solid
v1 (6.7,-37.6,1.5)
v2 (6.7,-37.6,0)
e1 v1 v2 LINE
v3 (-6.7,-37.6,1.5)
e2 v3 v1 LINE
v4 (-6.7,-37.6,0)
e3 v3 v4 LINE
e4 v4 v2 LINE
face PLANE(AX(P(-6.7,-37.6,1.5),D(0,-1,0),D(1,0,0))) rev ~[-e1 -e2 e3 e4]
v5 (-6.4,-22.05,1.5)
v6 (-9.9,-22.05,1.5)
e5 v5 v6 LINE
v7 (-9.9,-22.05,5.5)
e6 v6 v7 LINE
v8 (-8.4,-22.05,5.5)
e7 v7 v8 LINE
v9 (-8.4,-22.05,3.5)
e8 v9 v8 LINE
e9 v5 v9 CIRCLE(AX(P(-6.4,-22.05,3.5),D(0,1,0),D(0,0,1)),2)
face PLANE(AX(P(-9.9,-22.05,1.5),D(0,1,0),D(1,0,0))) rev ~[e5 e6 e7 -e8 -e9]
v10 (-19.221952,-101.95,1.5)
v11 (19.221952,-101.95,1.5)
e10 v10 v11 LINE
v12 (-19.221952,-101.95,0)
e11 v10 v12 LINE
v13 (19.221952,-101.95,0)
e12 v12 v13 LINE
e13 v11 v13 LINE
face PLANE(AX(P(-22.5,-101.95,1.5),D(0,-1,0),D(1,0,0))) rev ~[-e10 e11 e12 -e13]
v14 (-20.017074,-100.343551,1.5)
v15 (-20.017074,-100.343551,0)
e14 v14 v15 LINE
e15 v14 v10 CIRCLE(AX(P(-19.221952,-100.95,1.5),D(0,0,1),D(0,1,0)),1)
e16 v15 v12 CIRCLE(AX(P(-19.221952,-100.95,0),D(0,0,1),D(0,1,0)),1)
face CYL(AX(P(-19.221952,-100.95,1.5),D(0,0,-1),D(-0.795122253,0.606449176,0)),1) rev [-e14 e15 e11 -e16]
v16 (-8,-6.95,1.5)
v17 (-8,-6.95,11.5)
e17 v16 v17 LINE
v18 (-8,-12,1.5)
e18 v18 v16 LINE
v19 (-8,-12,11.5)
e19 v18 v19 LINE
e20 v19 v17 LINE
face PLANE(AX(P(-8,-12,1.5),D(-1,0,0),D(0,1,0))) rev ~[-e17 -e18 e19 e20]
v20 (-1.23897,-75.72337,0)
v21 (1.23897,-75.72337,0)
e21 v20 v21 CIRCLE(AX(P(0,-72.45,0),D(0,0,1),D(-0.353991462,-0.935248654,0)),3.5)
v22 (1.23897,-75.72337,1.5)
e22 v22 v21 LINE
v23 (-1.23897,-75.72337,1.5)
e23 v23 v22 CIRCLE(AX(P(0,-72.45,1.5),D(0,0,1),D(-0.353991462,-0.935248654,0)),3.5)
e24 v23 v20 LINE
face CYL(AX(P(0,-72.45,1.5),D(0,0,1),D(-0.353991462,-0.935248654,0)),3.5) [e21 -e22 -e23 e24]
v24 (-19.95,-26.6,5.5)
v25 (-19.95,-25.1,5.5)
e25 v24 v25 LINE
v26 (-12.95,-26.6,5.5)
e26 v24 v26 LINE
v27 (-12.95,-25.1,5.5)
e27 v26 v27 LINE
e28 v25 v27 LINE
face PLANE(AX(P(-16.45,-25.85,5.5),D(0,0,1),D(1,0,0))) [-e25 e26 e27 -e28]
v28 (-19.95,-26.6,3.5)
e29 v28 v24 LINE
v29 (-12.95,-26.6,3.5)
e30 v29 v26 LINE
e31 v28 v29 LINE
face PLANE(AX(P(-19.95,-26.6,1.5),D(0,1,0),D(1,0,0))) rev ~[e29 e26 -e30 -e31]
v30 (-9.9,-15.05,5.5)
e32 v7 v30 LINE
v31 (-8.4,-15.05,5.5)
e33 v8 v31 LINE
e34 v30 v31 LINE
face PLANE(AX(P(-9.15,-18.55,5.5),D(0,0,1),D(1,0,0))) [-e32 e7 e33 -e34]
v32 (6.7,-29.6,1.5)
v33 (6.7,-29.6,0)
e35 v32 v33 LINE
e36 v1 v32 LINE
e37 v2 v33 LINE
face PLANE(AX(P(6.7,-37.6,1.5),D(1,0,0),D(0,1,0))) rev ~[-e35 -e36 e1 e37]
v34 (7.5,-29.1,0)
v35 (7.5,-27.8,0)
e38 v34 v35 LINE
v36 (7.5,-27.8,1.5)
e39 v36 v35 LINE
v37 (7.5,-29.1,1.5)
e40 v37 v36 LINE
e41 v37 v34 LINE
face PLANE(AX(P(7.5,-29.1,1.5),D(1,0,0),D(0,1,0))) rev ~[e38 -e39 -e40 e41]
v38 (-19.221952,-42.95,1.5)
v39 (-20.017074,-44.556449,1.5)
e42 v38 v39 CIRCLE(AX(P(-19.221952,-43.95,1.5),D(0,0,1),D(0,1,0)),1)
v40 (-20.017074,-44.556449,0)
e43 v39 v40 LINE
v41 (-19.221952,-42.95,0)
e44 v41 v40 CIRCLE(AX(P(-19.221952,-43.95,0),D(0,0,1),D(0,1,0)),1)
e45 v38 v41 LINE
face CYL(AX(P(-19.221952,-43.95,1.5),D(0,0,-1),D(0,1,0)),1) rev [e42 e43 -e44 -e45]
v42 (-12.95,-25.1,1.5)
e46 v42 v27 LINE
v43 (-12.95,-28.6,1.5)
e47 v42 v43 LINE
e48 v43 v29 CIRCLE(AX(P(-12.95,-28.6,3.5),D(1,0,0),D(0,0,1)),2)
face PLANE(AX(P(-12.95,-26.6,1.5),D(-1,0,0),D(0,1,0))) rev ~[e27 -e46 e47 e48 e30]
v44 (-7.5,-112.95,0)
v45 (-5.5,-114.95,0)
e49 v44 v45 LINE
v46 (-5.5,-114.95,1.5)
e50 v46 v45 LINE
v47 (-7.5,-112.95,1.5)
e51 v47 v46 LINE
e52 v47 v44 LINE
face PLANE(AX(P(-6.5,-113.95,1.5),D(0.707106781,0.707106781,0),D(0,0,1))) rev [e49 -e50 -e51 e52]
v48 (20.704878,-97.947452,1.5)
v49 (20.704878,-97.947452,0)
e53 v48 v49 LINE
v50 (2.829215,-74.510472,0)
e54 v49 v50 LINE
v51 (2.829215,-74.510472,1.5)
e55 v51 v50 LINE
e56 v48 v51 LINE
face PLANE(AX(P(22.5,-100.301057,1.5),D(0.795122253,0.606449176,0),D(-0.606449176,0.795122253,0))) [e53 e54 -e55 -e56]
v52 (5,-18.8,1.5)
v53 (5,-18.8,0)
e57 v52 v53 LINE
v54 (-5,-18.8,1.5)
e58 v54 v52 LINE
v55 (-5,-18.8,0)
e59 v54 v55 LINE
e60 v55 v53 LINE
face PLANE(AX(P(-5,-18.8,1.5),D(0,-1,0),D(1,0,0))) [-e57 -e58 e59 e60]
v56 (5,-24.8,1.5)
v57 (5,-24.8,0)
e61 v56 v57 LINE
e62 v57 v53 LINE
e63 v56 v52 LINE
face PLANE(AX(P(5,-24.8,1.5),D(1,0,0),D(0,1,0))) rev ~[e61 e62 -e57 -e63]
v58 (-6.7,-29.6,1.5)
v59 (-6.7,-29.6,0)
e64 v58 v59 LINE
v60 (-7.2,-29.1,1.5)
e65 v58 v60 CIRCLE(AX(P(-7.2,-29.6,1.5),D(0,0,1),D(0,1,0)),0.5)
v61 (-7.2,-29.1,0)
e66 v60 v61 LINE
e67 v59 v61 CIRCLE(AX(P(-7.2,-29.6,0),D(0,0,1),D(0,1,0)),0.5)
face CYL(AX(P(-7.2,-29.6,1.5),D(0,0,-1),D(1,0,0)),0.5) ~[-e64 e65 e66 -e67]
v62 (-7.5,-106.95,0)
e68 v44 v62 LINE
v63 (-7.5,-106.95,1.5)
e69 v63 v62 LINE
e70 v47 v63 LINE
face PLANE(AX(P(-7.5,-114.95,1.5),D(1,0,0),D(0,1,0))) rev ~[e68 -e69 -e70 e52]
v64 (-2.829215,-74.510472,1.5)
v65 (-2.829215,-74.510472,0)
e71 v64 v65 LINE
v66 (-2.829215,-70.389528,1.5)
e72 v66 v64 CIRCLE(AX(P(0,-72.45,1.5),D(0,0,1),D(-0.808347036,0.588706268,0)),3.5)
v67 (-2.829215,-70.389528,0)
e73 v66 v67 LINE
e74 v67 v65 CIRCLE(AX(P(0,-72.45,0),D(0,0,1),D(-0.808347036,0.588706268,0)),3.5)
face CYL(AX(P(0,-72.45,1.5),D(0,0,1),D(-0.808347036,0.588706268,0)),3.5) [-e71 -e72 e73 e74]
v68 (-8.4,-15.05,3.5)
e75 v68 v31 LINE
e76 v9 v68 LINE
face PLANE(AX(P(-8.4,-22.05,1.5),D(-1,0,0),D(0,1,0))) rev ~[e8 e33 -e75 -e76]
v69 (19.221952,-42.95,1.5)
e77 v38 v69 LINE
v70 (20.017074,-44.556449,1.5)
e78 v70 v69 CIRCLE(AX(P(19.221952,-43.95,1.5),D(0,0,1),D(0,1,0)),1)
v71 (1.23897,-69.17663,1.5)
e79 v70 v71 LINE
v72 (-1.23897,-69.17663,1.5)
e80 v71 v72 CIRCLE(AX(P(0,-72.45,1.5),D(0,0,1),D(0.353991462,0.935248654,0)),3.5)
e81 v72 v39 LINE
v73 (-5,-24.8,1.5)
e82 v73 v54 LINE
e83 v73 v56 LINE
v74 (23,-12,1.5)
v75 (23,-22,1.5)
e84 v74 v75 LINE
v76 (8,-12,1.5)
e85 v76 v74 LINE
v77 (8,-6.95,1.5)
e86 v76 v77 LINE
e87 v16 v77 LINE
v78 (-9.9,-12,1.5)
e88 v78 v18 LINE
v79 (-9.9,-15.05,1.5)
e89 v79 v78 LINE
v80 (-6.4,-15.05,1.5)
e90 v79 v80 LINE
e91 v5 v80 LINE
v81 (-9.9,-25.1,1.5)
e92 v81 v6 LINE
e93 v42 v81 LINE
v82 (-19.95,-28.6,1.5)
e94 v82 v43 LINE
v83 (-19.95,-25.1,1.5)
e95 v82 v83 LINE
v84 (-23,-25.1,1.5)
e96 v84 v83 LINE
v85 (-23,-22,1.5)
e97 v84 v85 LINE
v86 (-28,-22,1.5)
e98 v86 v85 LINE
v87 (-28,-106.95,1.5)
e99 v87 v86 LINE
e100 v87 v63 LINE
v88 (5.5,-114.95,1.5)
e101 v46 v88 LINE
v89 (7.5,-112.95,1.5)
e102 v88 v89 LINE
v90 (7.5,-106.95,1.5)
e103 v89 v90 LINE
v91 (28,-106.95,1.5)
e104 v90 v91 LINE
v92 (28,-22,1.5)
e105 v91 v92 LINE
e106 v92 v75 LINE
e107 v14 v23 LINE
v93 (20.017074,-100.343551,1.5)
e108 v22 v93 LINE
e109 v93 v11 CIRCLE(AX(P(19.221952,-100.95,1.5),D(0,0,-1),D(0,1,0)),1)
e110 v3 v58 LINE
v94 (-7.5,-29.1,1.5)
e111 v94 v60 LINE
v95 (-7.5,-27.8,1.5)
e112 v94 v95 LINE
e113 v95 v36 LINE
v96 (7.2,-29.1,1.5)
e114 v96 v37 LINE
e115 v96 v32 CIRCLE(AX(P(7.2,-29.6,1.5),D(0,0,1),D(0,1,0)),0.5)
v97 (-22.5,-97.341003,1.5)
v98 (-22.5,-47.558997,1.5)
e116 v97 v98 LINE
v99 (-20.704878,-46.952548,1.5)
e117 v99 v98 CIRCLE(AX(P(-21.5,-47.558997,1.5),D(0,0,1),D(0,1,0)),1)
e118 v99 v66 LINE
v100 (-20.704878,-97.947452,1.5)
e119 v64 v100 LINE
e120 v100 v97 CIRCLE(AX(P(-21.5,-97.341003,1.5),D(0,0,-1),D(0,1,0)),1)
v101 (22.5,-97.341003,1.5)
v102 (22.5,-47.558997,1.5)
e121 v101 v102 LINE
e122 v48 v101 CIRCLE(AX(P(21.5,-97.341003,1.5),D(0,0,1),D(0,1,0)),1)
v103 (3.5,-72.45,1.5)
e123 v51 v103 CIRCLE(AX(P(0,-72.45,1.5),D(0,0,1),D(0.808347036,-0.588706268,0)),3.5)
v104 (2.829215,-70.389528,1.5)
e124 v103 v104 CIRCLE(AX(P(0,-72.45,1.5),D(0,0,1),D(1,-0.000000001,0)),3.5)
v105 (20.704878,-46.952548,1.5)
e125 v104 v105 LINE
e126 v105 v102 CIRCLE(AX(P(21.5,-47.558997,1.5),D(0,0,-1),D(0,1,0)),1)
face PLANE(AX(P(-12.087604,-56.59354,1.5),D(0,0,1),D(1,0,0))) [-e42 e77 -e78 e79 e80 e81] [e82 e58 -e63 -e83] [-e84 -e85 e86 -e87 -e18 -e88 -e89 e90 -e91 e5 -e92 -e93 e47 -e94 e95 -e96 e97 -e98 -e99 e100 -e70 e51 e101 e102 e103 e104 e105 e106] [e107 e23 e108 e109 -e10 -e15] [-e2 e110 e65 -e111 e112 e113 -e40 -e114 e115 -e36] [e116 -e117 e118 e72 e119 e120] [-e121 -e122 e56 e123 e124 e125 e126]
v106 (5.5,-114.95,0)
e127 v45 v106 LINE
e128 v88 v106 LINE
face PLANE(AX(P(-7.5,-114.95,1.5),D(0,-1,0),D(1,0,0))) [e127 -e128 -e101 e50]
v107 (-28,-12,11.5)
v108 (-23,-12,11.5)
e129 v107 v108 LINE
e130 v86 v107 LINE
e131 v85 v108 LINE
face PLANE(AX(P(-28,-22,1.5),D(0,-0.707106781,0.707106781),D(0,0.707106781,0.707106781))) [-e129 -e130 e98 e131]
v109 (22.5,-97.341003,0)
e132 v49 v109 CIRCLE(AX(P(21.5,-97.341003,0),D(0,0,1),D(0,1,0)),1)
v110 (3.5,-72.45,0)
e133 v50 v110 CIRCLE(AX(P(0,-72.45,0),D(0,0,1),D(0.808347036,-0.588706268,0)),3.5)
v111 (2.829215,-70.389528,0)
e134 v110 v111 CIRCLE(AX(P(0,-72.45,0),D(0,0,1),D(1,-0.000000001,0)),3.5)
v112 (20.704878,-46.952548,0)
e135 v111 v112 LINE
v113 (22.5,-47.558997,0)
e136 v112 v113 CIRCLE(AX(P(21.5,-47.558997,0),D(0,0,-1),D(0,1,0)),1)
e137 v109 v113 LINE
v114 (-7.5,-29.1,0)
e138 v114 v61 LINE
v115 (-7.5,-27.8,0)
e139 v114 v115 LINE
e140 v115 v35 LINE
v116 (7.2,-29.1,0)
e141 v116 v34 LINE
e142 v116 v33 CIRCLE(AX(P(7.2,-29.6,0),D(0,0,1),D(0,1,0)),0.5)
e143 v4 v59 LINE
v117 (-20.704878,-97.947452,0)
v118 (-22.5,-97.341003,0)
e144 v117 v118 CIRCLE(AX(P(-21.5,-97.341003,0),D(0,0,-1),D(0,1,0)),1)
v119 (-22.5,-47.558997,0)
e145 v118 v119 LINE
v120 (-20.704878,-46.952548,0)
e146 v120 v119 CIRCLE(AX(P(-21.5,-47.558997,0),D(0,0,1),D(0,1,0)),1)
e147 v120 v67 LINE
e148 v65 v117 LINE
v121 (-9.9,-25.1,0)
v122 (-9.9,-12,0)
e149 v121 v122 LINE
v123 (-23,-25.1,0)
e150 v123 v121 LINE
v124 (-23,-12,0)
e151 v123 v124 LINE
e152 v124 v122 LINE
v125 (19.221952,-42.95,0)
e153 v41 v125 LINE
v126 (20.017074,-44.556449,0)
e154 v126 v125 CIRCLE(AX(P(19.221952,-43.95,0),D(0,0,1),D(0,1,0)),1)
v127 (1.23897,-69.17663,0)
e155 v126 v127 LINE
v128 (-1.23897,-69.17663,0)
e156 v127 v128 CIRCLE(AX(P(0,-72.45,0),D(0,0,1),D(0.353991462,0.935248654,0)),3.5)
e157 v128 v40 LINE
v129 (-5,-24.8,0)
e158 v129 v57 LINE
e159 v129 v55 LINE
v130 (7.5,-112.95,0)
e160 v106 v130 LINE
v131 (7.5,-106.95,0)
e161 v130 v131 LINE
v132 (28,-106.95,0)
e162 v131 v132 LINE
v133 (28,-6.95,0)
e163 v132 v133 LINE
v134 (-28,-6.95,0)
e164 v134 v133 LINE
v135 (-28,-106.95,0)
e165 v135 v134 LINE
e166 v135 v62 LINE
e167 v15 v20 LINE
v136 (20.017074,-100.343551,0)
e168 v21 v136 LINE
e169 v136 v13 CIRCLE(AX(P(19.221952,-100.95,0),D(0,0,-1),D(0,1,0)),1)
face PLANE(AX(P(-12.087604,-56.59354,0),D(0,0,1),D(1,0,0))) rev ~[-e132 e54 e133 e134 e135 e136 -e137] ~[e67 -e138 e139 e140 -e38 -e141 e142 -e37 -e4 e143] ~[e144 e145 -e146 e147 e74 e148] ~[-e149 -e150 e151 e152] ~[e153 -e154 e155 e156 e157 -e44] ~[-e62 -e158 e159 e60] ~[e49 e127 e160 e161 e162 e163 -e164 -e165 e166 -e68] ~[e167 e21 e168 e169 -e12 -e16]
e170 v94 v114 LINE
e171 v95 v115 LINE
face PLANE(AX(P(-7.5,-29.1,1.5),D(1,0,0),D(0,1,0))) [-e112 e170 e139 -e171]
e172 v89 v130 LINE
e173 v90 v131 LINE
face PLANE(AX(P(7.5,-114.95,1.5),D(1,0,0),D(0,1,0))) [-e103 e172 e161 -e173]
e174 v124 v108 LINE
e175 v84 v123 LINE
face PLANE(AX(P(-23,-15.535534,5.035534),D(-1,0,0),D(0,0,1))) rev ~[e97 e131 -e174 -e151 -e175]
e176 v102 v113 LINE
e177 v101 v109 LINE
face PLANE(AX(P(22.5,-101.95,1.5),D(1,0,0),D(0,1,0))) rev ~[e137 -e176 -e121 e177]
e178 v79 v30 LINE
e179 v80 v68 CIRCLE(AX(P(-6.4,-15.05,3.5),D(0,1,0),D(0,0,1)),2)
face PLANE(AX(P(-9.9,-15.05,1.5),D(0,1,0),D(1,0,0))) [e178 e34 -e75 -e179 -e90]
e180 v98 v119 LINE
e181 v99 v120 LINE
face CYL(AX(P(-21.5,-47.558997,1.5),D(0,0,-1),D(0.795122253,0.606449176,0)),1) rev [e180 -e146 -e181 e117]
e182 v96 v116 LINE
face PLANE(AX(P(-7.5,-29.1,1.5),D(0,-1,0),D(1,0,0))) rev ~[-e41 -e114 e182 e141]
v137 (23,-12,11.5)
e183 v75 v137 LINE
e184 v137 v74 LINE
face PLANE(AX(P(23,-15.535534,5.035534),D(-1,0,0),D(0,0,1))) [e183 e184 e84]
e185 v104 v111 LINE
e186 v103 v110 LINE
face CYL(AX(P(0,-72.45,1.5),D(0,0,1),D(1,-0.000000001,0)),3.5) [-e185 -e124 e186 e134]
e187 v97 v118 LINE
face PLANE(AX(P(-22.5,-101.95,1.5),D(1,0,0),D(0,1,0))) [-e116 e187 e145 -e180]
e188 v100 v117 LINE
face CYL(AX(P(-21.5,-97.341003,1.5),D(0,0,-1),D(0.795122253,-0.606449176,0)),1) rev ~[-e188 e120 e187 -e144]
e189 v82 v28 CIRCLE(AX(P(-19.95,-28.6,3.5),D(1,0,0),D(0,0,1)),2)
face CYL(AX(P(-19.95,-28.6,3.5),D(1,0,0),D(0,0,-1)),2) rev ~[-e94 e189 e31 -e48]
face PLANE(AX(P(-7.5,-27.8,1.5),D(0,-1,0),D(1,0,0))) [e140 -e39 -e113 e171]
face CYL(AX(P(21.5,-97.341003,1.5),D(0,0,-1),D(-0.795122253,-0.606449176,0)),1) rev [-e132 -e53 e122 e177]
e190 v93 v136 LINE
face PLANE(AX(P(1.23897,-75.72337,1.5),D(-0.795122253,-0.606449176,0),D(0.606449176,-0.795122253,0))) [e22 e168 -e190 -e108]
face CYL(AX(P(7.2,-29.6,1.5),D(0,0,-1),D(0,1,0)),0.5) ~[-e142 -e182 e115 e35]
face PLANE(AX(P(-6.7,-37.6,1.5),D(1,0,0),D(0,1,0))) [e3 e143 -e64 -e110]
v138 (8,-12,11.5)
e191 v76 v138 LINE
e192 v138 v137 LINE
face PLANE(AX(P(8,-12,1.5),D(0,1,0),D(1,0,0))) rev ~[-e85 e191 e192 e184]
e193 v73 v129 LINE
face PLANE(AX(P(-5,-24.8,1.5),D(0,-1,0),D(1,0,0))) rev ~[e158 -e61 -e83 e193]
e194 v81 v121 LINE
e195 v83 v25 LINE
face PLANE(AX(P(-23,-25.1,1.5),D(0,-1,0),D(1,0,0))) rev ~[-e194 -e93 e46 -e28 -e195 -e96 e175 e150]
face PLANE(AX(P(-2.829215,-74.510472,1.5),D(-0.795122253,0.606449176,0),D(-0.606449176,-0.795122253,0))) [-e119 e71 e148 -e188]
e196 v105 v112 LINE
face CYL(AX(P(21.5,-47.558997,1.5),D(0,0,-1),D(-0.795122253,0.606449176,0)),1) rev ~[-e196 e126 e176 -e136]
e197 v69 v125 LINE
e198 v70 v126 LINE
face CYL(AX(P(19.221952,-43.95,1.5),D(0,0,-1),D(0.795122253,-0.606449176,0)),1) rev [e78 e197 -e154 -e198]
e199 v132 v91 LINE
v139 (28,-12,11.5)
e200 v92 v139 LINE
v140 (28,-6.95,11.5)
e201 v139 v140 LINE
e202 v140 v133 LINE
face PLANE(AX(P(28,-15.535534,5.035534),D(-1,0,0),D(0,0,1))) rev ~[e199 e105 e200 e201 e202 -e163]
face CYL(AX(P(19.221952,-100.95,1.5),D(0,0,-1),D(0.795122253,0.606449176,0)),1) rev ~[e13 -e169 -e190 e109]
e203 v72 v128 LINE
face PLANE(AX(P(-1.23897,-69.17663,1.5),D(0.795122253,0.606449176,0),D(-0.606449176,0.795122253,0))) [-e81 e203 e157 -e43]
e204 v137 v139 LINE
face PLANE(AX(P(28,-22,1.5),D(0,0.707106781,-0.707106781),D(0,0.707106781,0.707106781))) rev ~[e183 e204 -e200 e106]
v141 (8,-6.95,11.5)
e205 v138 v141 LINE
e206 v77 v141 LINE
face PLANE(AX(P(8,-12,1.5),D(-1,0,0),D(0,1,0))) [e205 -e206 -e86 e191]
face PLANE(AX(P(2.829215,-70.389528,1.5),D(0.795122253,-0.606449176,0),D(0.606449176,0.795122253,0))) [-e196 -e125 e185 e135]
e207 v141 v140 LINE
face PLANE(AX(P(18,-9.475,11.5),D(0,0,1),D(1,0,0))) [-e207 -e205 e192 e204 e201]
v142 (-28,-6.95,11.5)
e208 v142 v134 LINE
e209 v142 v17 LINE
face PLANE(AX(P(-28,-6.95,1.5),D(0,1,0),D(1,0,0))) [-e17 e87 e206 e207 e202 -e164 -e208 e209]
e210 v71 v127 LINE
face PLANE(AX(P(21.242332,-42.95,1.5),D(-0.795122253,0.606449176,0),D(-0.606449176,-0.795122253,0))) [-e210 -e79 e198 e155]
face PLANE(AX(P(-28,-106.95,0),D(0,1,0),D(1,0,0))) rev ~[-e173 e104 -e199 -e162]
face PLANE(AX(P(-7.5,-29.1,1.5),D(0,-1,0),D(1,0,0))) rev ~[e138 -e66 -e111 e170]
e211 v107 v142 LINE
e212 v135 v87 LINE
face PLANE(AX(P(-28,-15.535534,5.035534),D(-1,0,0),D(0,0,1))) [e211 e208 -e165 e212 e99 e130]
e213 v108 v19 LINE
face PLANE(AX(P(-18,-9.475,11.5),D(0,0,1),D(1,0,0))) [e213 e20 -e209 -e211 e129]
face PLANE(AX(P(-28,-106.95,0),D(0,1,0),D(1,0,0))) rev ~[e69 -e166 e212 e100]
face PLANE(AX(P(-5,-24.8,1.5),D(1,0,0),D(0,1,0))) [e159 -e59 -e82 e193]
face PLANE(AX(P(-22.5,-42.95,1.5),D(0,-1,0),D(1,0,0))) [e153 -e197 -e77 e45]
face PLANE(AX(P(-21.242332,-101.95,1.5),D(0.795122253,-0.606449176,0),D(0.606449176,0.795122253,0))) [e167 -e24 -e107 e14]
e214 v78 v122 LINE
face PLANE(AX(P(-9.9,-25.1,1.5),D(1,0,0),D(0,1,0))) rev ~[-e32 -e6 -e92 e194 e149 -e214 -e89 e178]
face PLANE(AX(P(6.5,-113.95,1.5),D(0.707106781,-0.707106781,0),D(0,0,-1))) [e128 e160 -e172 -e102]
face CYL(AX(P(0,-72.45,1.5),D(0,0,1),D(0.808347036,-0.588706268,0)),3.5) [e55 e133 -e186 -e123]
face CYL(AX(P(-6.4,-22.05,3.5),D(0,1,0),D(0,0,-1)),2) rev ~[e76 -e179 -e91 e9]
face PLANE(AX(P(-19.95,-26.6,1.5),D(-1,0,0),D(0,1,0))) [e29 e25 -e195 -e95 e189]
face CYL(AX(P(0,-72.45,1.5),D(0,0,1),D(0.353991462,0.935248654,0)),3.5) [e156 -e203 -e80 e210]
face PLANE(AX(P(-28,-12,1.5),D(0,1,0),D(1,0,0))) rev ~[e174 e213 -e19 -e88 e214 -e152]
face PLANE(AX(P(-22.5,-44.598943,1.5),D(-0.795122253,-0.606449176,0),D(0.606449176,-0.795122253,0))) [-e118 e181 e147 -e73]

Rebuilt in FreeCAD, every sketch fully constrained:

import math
import FreeCAD as App
import Part
import Sketcher


def edges_at(feature, points):
    """Names of the edges that pass closest to the given points."""
    edges = feature.Shape.Edges
    near = lambda p: min(range(len(edges)), key=lambda i: edges[i].distToShape(Part.Vertex(*p))[0])
    return sorted({f"Edge{near(p) + 1}" for p in points})


def add_polygon(sketch, points):
    """Adds a closed chain of lines whose ends are joined by coincident constraints."""
    first, n = sketch.GeometryCount, len(points)
    for a, b in zip(points, points[1:] + points[:1]):
        sketch.addGeometry(Part.LineSegment(App.Vector(*a, 0), App.Vector(*b, 0)), False)
    for i in range(n):
        sketch.addConstraint(Sketcher.Constraint("Coincident", first + i, 2, first + (i + 1) % n, 1))

doc = App.newDocument("Part")
body = doc.addObject("PartDesign::Body", "Body")

sketch1 = body.newObject("Sketcher::SketchObject", "Sketch")
sketch1.AttachmentSupport = (doc.getObject("XY_Plane"), [""])
sketch1.MapMode = "FlatFace"
add_polygon(sketch1, [(-28, -6.95), (-28, -106.95), (28, -106.95), (28, -6.95)])
sketch1.addConstraint(Sketcher.Constraint("Vertical", 0))
sketch1.addConstraint(Sketcher.Constraint("Horizontal", 1))
sketch1.addConstraint(Sketcher.Constraint("Vertical", 2))
sketch1.addConstraint(Sketcher.Constraint("Horizontal", 3))
sketch1.addConstraint(Sketcher.Constraint("DistanceX", 1, 1, 1, 2, 56.0))
sketch1.addConstraint(Sketcher.Constraint("DistanceY", 0, 2, 0, 1, 100.0))
sketch1.addConstraint(Sketcher.Constraint("DistanceX", 0, 2, -1, 1, 28.0))
sketch1.addConstraint(Sketcher.Constraint("DistanceY", 0, 2, -1, 1, 106.95))
pad1 = body.newObject("PartDesign::Pad", "Pad")
pad1.Profile = sketch1
pad1.Length = 1.5

sketch2 = body.newObject("Sketcher::SketchObject", "Sketch001")
sketch2.AttachmentSupport = (doc.getObject("XY_Plane"), [""])
sketch2.MapMode = "FlatFace"
sketch2.AttachmentOffset = App.Placement(App.Vector(0, 0, 1.5), App.Rotation())
add_polygon(sketch2, [(-28, -6.95), (-28, -12), (-8, -12), (-8, -6.95)])
add_polygon(sketch2, [(8, -6.95), (8, -12), (28, -12), (28, -6.95)])
sketch2.addConstraint(Sketcher.Constraint("Vertical", 0))
sketch2.addConstraint(Sketcher.Constraint("Horizontal", 1))
sketch2.addConstraint(Sketcher.Constraint("Vertical", 2))
sketch2.addConstraint(Sketcher.Constraint("Horizontal", 3))
sketch2.addConstraint(Sketcher.Constraint("Vertical", 4))
sketch2.addConstraint(Sketcher.Constraint("Horizontal", 5))
sketch2.addConstraint(Sketcher.Constraint("Vertical", 6))
sketch2.addConstraint(Sketcher.Constraint("Horizontal", 7))
sketch2.addConstraint(Sketcher.Constraint("Symmetric", 1, 2, 4, 2, -2))
sketch2.addConstraint(Sketcher.Constraint("Symmetric", 3, 2, 6, 2, -2))
sketch2.addConstraint(Sketcher.Constraint("DistanceX", 1, 1, 1, 2, 20.0))
sketch2.addConstraint(Sketcher.Constraint("DistanceX", 0, 2, -1, 1, 28.0))
sketch2.addConstraint(Sketcher.Constraint("DistanceY", 0, 2, -1, 1, 12.0))
sketch2.addConstraint(Sketcher.Constraint("DistanceY", 0, 2, 0, 1, 5.05))
pad2 = body.newObject("PartDesign::Pad", "Pad001")
pad2.Profile = sketch2
pad2.Length = 10

sketch3 = body.newObject("Sketcher::SketchObject", "Sketch002")
sketch3.AttachmentSupport = (doc.getObject("XY_Plane"), [""])
sketch3.MapMode = "FlatFace"
sketch3.AttachmentOffset = App.Placement(App.Vector(0, 0, 1.5), App.Rotation())
add_polygon(sketch3, [(-23, -12), (-23, -25.1), (-9.9, -25.1), (-9.9, -12)])
sketch3.addConstraint(Sketcher.Constraint("Vertical", 0))
sketch3.addConstraint(Sketcher.Constraint("Horizontal", 1))
sketch3.addConstraint(Sketcher.Constraint("Vertical", 2))
sketch3.addConstraint(Sketcher.Constraint("Horizontal", 3))
sketch3.addConstraint(Sketcher.Constraint("Equal", 3, 0))
sketch3.addConstraint(Sketcher.Constraint("DistanceX", 1, 1, 1, 2, 13.1))
sketch3.addConstraint(Sketcher.Constraint("DistanceX", 0, 2, -1, 1, 23.0))
sketch3.addConstraint(Sketcher.Constraint("DistanceY", 2, 2, -1, 1, 12.0))
pocket1 = body.newObject("PartDesign::Pocket", "Pocket")
pocket1.Profile = sketch3
pocket1.Type = "ThroughAll"

sketch4 = body.newObject("Sketcher::SketchObject", "Sketch003")
sketch4.AttachmentSupport = (doc.getObject("YZ_Plane"), [""])
sketch4.MapMode = "FlatFace"
sketch4.AttachmentOffset = App.Placement(App.Vector(0, 0, 28), App.Rotation())
add_polygon(sketch4, [(-12, 1.5), (-12, 11.5), (-22, 1.5)])
sketch4.addConstraint(Sketcher.Constraint("Vertical", 0))
sketch4.addConstraint(Sketcher.Constraint("Horizontal", 2))
sketch4.addConstraint(Sketcher.Constraint("Equal", 2, 0))
sketch4.addConstraint(Sketcher.Constraint("DistanceX", 2, 1, 2, 2, 10.0))
sketch4.addConstraint(Sketcher.Constraint("DistanceX", 0, 2, -1, 1, 12.0))
sketch4.addConstraint(Sketcher.Constraint("DistanceY", -1, 1, 0, 2, 11.5))
pad3 = body.newObject("PartDesign::Pad", "Pad002")
pad3.Profile = sketch4
pad3.Length = 5
pad3.Reversed = True

sketch5 = body.newObject("Sketcher::SketchObject", "Sketch004")
sketch5.AttachmentSupport = (doc.getObject("YZ_Plane"), [""])
sketch5.MapMode = "FlatFace"
sketch5.AttachmentOffset = App.Placement(App.Vector(0, 0, -28), App.Rotation())
add_polygon(sketch5, [(-22, 1.5), (-12, 11.5), (-12, 1.5)])
sketch5.addConstraint(Sketcher.Constraint("Vertical", 1))
sketch5.addConstraint(Sketcher.Constraint("Horizontal", 2))
sketch5.addConstraint(Sketcher.Constraint("Equal", 2, 1))
sketch5.addConstraint(Sketcher.Constraint("DistanceX", 2, 2, 2, 1, 10.0))
sketch5.addConstraint(Sketcher.Constraint("DistanceX", 0, 2, -1, 1, 12.0))
sketch5.addConstraint(Sketcher.Constraint("DistanceY", -1, 1, 0, 2, 11.5))
pad4 = body.newObject("PartDesign::Pad", "Pad003")
pad4.Profile = sketch5
pad4.Length = 5

sketch6 = body.newObject("Sketcher::SketchObject", "Sketch005")
sketch6.AttachmentSupport = (doc.getObject("XY_Plane"), [""])
sketch6.MapMode = "FlatFace"
sketch6.AttachmentOffset = App.Placement(App.Vector(0, 0, 1.5), App.Rotation())
add_polygon(sketch6, [(-19.95, -25.1), (-19.95, -26.6), (-12.95, -26.6), (-12.95, -25.1)])
add_polygon(sketch6, [(-9.9, -15.05), (-9.9, -22.05), (-8.4, -22.05), (-8.4, -15.05)])
sketch6.addConstraint(Sketcher.Constraint("Vertical", 0))
sketch6.addConstraint(Sketcher.Constraint("Horizontal", 1))
sketch6.addConstraint(Sketcher.Constraint("Vertical", 2))
sketch6.addConstraint(Sketcher.Constraint("Horizontal", 3))
sketch6.addConstraint(Sketcher.Constraint("Vertical", 4))
sketch6.addConstraint(Sketcher.Constraint("Horizontal", 5))
sketch6.addConstraint(Sketcher.Constraint("Vertical", 6))
sketch6.addConstraint(Sketcher.Constraint("Horizontal", 7))
sketch6.addConstraint(Sketcher.Constraint("Equal", 7, 0))
sketch6.addConstraint(Sketcher.Constraint("Equal", 3, 4))
sketch6.addConstraint(Sketcher.Constraint("DistanceX", 1, 1, 1, 2, 7.0))
sketch6.addConstraint(Sketcher.Constraint("DistanceX", 5, 1, 5, 2, 1.5))
sketch6.addConstraint(Sketcher.Constraint("DistanceY", 0, 2, -1, 1, 26.6))
sketch6.addConstraint(Sketcher.Constraint("DistanceX", 4, 2, -1, 1, 9.9))
sketch6.addConstraint(Sketcher.Constraint("DistanceX", 0, 2, -1, 1, 19.95))
sketch6.addConstraint(Sketcher.Constraint("DistanceY", 4, 2, -1, 1, 22.05))
pad5 = body.newObject("PartDesign::Pad", "Pad004")
pad5.Profile = sketch6
pad5.Length = 4

sketch7 = body.newObject("Sketcher::SketchObject", "Sketch006")
sketch7.AttachmentSupport = (doc.getObject("XY_Plane"), [""])
sketch7.MapMode = "FlatFace"
sketch7.AttachmentOffset = App.Placement(App.Vector(0, 0, 1.5), App.Rotation())
add_polygon(sketch7, [(-7.5, -27.8), (-7.5, -29.1), (7.5, -29.1), (7.5, -27.8)])
sketch7.addConstraint(Sketcher.Constraint("Vertical", 0))
sketch7.addConstraint(Sketcher.Constraint("Horizontal", 1))
sketch7.addConstraint(Sketcher.Constraint("Vertical", 2))
sketch7.addConstraint(Sketcher.Constraint("Horizontal", 3))
sketch7.addConstraint(Sketcher.Constraint("DistanceX", 1, 1, 1, 2, 15.0))
sketch7.addConstraint(Sketcher.Constraint("DistanceY", 0, 2, 0, 1, 1.3))
sketch7.addConstraint(Sketcher.Constraint("DistanceX", 0, 2, -1, 1, 7.5))
sketch7.addConstraint(Sketcher.Constraint("DistanceY", 0, 2, -1, 1, 29.1))
pocket2 = body.newObject("PartDesign::Pocket", "Pocket001")
pocket2.Profile = sketch7
pocket2.Type = "ThroughAll"

sketch8 = body.newObject("Sketcher::SketchObject", "Sketch007")
sketch8.AttachmentSupport = (doc.getObject("XY_Plane"), [""])
sketch8.MapMode = "FlatFace"
sketch8.AttachmentOffset = App.Placement(App.Vector(0, 0, 1.5), App.Rotation())
add_polygon(sketch8, [(-6.7, -29.1), (-6.7, -37.6), (6.7, -37.6), (6.7, -29.1)])
add_polygon(sketch8, [(-5, -18.8), (-5, -24.8), (5, -24.8), (5, -18.8)])
sketch8.addConstraint(Sketcher.Constraint("Vertical", 0))
sketch8.addConstraint(Sketcher.Constraint("Horizontal", 1))
sketch8.addConstraint(Sketcher.Constraint("Vertical", 2))
sketch8.addConstraint(Sketcher.Constraint("Horizontal", 3))
sketch8.addConstraint(Sketcher.Constraint("Vertical", 4))
sketch8.addConstraint(Sketcher.Constraint("Horizontal", 5))
sketch8.addConstraint(Sketcher.Constraint("Vertical", 6))
sketch8.addConstraint(Sketcher.Constraint("Horizontal", 7))
sketch8.addConstraint(Sketcher.Constraint("DistanceX", 5, 1, 5, 2, 10.0))
sketch8.addConstraint(Sketcher.Constraint("DistanceY", 4, 2, 4, 1, 6.0))
sketch8.addConstraint(Sketcher.Constraint("DistanceX", 1, 1, 1, 2, 13.4))
sketch8.addConstraint(Sketcher.Constraint("DistanceY", 0, 2, 0, 1, 8.5))
sketch8.addConstraint(Sketcher.Constraint("DistanceX", 4, 2, -1, 1, 5.0))
sketch8.addConstraint(Sketcher.Constraint("DistanceX", 0, 2, -1, 1, 6.7))
sketch8.addConstraint(Sketcher.Constraint("DistanceY", 0, 2, -1, 1, 37.6))
sketch8.addConstraint(Sketcher.Constraint("DistanceY", 4, 2, -1, 1, 24.8))
pocket3 = body.newObject("PartDesign::Pocket", "Pocket002")
pocket3.Profile = sketch8
pocket3.Type = "ThroughAll"
doc.recompute()

fillet = body.newObject("PartDesign::Fillet", "Fillet")
fillet.Base = (pocket3, edges_at(pocket3, [(-16.45, -26.6, 1.5), (-8.4, -18.55, 1.5)]))
fillet.Radius = 2

sketch9 = body.newObject("Sketcher::SketchObject", "Sketch008")
sketch9.AttachmentSupport = (doc.getObject("XY_Plane"), [""])
sketch9.MapMode = "FlatFace"
sketch9.AttachmentOffset = App.Placement(App.Vector(0, 0, 1.5), App.Rotation())
add_polygon(sketch9, [(-7.5, -106.95), (-7.5, -114.95), (7.5, -114.95), (7.5, -106.95)])
sketch9.addConstraint(Sketcher.Constraint("Vertical", 0))
sketch9.addConstraint(Sketcher.Constraint("Horizontal", 1))
sketch9.addConstraint(Sketcher.Constraint("Vertical", 2))
sketch9.addConstraint(Sketcher.Constraint("Horizontal", 3))
sketch9.addConstraint(Sketcher.Constraint("DistanceX", 1, 1, 1, 2, 15.0))
sketch9.addConstraint(Sketcher.Constraint("DistanceY", 0, 2, 0, 1, 8.0))
sketch9.addConstraint(Sketcher.Constraint("DistanceX", 0, 2, -1, 1, 7.5))
sketch9.addConstraint(Sketcher.Constraint("DistanceY", 0, 2, -1, 1, 114.95))
pad6 = body.newObject("PartDesign::Pad", "Pad005")
pad6.Profile = sketch9
pad6.Length = 1.5
pad6.Reversed = True
doc.recompute()

chamfer = body.newObject("PartDesign::Chamfer", "Chamfer")
chamfer.Base = (pad6, edges_at(pad6, [(-7.5, -114.95, 0.75), (7.5, -114.95, 0.75)]))
chamfer.Size = 2

sketch10 = body.newObject("Sketcher::SketchObject", "Sketch009")
sketch10.AttachmentSupport = (doc.getObject("XY_Plane"), [""])
sketch10.MapMode = "FlatFace"
sketch10.AttachmentOffset = App.Placement(App.Vector(0, 0, 1.5), App.Rotation())
add_polygon(sketch10, [(-22.5, -42.95), (-22.5, -101.95), (22.5, -101.95), (22.5, -42.95)])
sketch10.addConstraint(Sketcher.Constraint("Vertical", 0))
sketch10.addConstraint(Sketcher.Constraint("Horizontal", 1))
sketch10.addConstraint(Sketcher.Constraint("Vertical", 2))
sketch10.addConstraint(Sketcher.Constraint("Horizontal", 3))
sketch10.addConstraint(Sketcher.Constraint("DistanceX", 1, 1, 1, 2, 45.0))
sketch10.addConstraint(Sketcher.Constraint("DistanceY", 0, 2, 0, 1, 59.0))
sketch10.addConstraint(Sketcher.Constraint("DistanceX", 0, 2, -1, 1, 22.5))
sketch10.addConstraint(Sketcher.Constraint("DistanceY", 0, 2, -1, 1, 101.95))
pocket4 = body.newObject("PartDesign::Pocket", "Pocket003")
pocket4.Profile = sketch10
pocket4.Length = 4

sketch11 = body.newObject("Sketcher::SketchObject", "Sketch010")
sketch11.AttachmentSupport = (doc.getObject("XY_Plane"), [""])
sketch11.MapMode = "FlatFace"
sketch11.AttachmentOffset = App.Placement(App.Vector(0, 0, 1.5), App.Rotation())
sketch11.addGeometry(Part.LineSegment(App.Vector(21.242332, -42.95, 0), App.Vector(1.23897, -69.17663, 0)), False)
sketch11.addGeometry(Part.ArcOfCircle(Part.Circle(App.Vector(0, -72.45, 0), App.Vector(0, 0, 1), 3.5), math.radians(69.268354), math.radians(110.731646)), False)
sketch11.addGeometry(Part.LineSegment(App.Vector(-1.23897, -69.17663, 0), App.Vector(-21.242332, -42.95, 0)), False)
sketch11.addGeometry(Part.LineSegment(App.Vector(-21.242332, -42.95, 0), App.Vector(-22.5, -42.95, 0)), False)
sketch11.addGeometry(Part.LineSegment(App.Vector(-22.5, -42.95, 0), App.Vector(-22.5, -44.598943, 0)), False)
sketch11.addGeometry(Part.LineSegment(App.Vector(-22.5, -44.598943, 0), App.Vector(-2.829215, -70.389528, 0)), False)
sketch11.addGeometry(Part.ArcOfCircle(Part.Circle(App.Vector(0, -72.45, 0), App.Vector(0, 0, 1), 3.5), math.radians(143.934745), math.radians(216.065255)), False)
sketch11.addGeometry(Part.LineSegment(App.Vector(-2.829215, -74.510472, 0), App.Vector(-22.5, -100.301057, 0)), False)
sketch11.addGeometry(Part.LineSegment(App.Vector(-22.5, -100.301057, 0), App.Vector(-22.5, -101.95, 0)), False)
sketch11.addGeometry(Part.LineSegment(App.Vector(-22.5, -101.95, 0), App.Vector(-21.242332, -101.95, 0)), False)
sketch11.addGeometry(Part.LineSegment(App.Vector(-21.242332, -101.95, 0), App.Vector(-1.23897, -75.72337, 0)), False)
sketch11.addGeometry(Part.ArcOfCircle(Part.Circle(App.Vector(0, -72.45, 0), App.Vector(0, 0, 1), 3.5), math.radians(-110.731646), math.radians(-69.268354)), False)
sketch11.addGeometry(Part.LineSegment(App.Vector(1.23897, -75.72337, 0), App.Vector(21.242332, -101.95, 0)), False)
sketch11.addGeometry(Part.LineSegment(App.Vector(21.242332, -101.95, 0), App.Vector(22.5, -101.95, 0)), False)
sketch11.addGeometry(Part.LineSegment(App.Vector(22.5, -101.95, 0), App.Vector(22.5, -100.301057, 0)), False)
sketch11.addGeometry(Part.LineSegment(App.Vector(22.5, -100.301057, 0), App.Vector(2.829215, -74.510472, 0)), False)
sketch11.addGeometry(Part.ArcOfCircle(Part.Circle(App.Vector(0, -72.45, 0), App.Vector(0, 0, 1), 3.5), math.radians(-36.065255), math.radians(0)), False)
sketch11.addGeometry(Part.ArcOfCircle(Part.Circle(App.Vector(0, -72.45, 0), App.Vector(0, 0, 1), 3.5), math.radians(0), math.radians(36.065255)), False)
sketch11.addGeometry(Part.LineSegment(App.Vector(2.829215, -70.389528, 0), App.Vector(22.5, -44.598943, 0)), False)
sketch11.addGeometry(Part.LineSegment(App.Vector(22.5, -44.598943, 0), App.Vector(22.5, -42.95, 0)), False)
sketch11.addGeometry(Part.LineSegment(App.Vector(22.5, -42.95, 0), App.Vector(21.242332, -42.95, 0)), False)
sketch11.addConstraint(Sketcher.Constraint("Coincident", 0, 2, 1, 1))
sketch11.addConstraint(Sketcher.Constraint("Coincident", 1, 2, 2, 1))
sketch11.addConstraint(Sketcher.Constraint("Coincident", 2, 2, 3, 1))
sketch11.addConstraint(Sketcher.Constraint("Coincident", 3, 2, 4, 1))
sketch11.addConstraint(Sketcher.Constraint("Coincident", 4, 2, 5, 1))
sketch11.addConstraint(Sketcher.Constraint("Coincident", 5, 2, 6, 1))
sketch11.addConstraint(Sketcher.Constraint("Coincident", 6, 2, 7, 1))
sketch11.addConstraint(Sketcher.Constraint("Coincident", 7, 2, 8, 1))
sketch11.addConstraint(Sketcher.Constraint("Coincident", 8, 2, 9, 1))
sketch11.addConstraint(Sketcher.Constraint("Coincident", 9, 2, 10, 1))
sketch11.addConstraint(Sketcher.Constraint("Coincident", 10, 2, 11, 1))
sketch11.addConstraint(Sketcher.Constraint("Coincident", 11, 2, 12, 1))
sketch11.addConstraint(Sketcher.Constraint("Coincident", 12, 2, 13, 1))
sketch11.addConstraint(Sketcher.Constraint("Coincident", 13, 2, 14, 1))
sketch11.addConstraint(Sketcher.Constraint("Coincident", 14, 2, 15, 1))
sketch11.addConstraint(Sketcher.Constraint("Coincident", 15, 2, 16, 1))
sketch11.addConstraint(Sketcher.Constraint("Tangent", 16, 2, 17, 1))
sketch11.addConstraint(Sketcher.Constraint("Coincident", 17, 2, 18, 1))
sketch11.addConstraint(Sketcher.Constraint("Coincident", 18, 2, 19, 1))
sketch11.addConstraint(Sketcher.Constraint("Coincident", 19, 2, 20, 1))
sketch11.addConstraint(Sketcher.Constraint("Coincident", 20, 2, 0, 1))
sketch11.addConstraint(Sketcher.Constraint("Horizontal", 3))
sketch11.addConstraint(Sketcher.Constraint("Vertical", 4))
sketch11.addConstraint(Sketcher.Constraint("Vertical", 8))
sketch11.addConstraint(Sketcher.Constraint("Horizontal", 9))
sketch11.addConstraint(Sketcher.Constraint("Horizontal", 13))
sketch11.addConstraint(Sketcher.Constraint("Vertical", 14))
sketch11.addConstraint(Sketcher.Constraint("Vertical", 19))
sketch11.addConstraint(Sketcher.Constraint("Horizontal", 20))
sketch11.addConstraint(Sketcher.Constraint("Coincident", 6, 3, 1, 3))
sketch11.addConstraint(Sketcher.Constraint("Coincident", 11, 3, 1, 3))
sketch11.addConstraint(Sketcher.Constraint("Coincident", 16, 3, 1, 3))
sketch11.addConstraint(Sketcher.Constraint("Equal", 1, 6))
sketch11.addConstraint(Sketcher.Constraint("Equal", 6, 11))
sketch11.addConstraint(Sketcher.Constraint("Equal", 11, 16))
sketch11.addConstraint(Sketcher.Constraint("Equal", 16, 17))
sketch11.addConstraint(Sketcher.Constraint("Symmetric", 0, 2, 1, 2, -2))
sketch11.addConstraint(Sketcher.Constraint("Symmetric", 9, 2, 12, 2, -2))
sketch11.addConstraint(Sketcher.Constraint("Symmetric", 7, 2, 14, 2, -2))
sketch11.addConstraint(Sketcher.Constraint("Symmetric", 4, 2, 18, 2, -2))
sketch11.addConstraint(Sketcher.Constraint("Symmetric", 2, 2, 20, 2, -2))
sketch11.addConstraint(Sketcher.Constraint("Parallel", 2, 5))
sketch11.addConstraint(Sketcher.Constraint("Parallel", 0, 7))
sketch11.addConstraint(Sketcher.Constraint("Parallel", 7, 10))
sketch11.addConstraint(Sketcher.Constraint("Parallel", 5, 12))
sketch11.addConstraint(Sketcher.Constraint("Parallel", 12, 15))
sketch11.addConstraint(Sketcher.Constraint("Parallel", 10, 18))
sketch11.addConstraint(Sketcher.Constraint("Horizontal", 17, 3, 16, 2))
sketch11.addConstraint(Sketcher.Constraint("Vertical", 5, 2, 6, 2))
sketch11.addConstraint(Sketcher.Constraint("Vertical", 4, 2, 7, 2))
sketch11.addConstraint(Sketcher.Constraint("Vertical", 2, 2, 9, 2))
sketch11.addConstraint(Sketcher.Constraint("Vertical", 1, 2, 10, 2))
sketch11.addConstraint(Sketcher.Constraint("Radius", 1, 3.5))
sketch11.addConstraint(Sketcher.Constraint("DistanceX", 16, 2, 18, 2, 19.0))
sketch11.addConstraint(Sketcher.Constraint("DistanceY", 11, 3, 2, 2, 29.5))
sketch11.addConstraint(Sketcher.Constraint("DistanceY", 1, 3, -1, 1, 72.45))
sketch11.addConstraint(Sketcher.Constraint("Distance", 5, 32.436))
sketch11.addConstraint(Sketcher.Constraint("Distance", 0, 32.984399))
sketch11.addConstraint(Sketcher.Constraint("DistanceX", 3, 2, 3, 1, 1.257668))
pad7 = body.newObject("PartDesign::Pad", "Pad006")
pad7.Profile = sketch11
pad7.Length = 1.5
pad7.Reversed = True
doc.recompute()

fillet2 = body.newObject("PartDesign::Fillet", "Fillet001")
fillet2.Base = (pad7, edges_at(pad7, [
    (-22.5, -100.301, 0.75),
    (-21.242, -101.95, 0.75),
    (21.242, -101.95, 0.75),
    (22.5, -100.301, 0.75),
    (22.5, -44.599, 0.75),
    (21.242, -42.95, 0.75),
    (-21.242, -42.95, 0.75),
    (-22.5, -44.599, 0.75),
]))
fillet2.Radius = 1
doc.recompute()

fillet3 = body.newObject("PartDesign::Fillet", "Fillet002")
fillet3.Base = (fillet2, edges_at(fillet2, [(6.7, -29.1, 0.75), (-6.7, -29.1, 0.75)]))
fillet3.Radius = 0.5

doc.recompute()
